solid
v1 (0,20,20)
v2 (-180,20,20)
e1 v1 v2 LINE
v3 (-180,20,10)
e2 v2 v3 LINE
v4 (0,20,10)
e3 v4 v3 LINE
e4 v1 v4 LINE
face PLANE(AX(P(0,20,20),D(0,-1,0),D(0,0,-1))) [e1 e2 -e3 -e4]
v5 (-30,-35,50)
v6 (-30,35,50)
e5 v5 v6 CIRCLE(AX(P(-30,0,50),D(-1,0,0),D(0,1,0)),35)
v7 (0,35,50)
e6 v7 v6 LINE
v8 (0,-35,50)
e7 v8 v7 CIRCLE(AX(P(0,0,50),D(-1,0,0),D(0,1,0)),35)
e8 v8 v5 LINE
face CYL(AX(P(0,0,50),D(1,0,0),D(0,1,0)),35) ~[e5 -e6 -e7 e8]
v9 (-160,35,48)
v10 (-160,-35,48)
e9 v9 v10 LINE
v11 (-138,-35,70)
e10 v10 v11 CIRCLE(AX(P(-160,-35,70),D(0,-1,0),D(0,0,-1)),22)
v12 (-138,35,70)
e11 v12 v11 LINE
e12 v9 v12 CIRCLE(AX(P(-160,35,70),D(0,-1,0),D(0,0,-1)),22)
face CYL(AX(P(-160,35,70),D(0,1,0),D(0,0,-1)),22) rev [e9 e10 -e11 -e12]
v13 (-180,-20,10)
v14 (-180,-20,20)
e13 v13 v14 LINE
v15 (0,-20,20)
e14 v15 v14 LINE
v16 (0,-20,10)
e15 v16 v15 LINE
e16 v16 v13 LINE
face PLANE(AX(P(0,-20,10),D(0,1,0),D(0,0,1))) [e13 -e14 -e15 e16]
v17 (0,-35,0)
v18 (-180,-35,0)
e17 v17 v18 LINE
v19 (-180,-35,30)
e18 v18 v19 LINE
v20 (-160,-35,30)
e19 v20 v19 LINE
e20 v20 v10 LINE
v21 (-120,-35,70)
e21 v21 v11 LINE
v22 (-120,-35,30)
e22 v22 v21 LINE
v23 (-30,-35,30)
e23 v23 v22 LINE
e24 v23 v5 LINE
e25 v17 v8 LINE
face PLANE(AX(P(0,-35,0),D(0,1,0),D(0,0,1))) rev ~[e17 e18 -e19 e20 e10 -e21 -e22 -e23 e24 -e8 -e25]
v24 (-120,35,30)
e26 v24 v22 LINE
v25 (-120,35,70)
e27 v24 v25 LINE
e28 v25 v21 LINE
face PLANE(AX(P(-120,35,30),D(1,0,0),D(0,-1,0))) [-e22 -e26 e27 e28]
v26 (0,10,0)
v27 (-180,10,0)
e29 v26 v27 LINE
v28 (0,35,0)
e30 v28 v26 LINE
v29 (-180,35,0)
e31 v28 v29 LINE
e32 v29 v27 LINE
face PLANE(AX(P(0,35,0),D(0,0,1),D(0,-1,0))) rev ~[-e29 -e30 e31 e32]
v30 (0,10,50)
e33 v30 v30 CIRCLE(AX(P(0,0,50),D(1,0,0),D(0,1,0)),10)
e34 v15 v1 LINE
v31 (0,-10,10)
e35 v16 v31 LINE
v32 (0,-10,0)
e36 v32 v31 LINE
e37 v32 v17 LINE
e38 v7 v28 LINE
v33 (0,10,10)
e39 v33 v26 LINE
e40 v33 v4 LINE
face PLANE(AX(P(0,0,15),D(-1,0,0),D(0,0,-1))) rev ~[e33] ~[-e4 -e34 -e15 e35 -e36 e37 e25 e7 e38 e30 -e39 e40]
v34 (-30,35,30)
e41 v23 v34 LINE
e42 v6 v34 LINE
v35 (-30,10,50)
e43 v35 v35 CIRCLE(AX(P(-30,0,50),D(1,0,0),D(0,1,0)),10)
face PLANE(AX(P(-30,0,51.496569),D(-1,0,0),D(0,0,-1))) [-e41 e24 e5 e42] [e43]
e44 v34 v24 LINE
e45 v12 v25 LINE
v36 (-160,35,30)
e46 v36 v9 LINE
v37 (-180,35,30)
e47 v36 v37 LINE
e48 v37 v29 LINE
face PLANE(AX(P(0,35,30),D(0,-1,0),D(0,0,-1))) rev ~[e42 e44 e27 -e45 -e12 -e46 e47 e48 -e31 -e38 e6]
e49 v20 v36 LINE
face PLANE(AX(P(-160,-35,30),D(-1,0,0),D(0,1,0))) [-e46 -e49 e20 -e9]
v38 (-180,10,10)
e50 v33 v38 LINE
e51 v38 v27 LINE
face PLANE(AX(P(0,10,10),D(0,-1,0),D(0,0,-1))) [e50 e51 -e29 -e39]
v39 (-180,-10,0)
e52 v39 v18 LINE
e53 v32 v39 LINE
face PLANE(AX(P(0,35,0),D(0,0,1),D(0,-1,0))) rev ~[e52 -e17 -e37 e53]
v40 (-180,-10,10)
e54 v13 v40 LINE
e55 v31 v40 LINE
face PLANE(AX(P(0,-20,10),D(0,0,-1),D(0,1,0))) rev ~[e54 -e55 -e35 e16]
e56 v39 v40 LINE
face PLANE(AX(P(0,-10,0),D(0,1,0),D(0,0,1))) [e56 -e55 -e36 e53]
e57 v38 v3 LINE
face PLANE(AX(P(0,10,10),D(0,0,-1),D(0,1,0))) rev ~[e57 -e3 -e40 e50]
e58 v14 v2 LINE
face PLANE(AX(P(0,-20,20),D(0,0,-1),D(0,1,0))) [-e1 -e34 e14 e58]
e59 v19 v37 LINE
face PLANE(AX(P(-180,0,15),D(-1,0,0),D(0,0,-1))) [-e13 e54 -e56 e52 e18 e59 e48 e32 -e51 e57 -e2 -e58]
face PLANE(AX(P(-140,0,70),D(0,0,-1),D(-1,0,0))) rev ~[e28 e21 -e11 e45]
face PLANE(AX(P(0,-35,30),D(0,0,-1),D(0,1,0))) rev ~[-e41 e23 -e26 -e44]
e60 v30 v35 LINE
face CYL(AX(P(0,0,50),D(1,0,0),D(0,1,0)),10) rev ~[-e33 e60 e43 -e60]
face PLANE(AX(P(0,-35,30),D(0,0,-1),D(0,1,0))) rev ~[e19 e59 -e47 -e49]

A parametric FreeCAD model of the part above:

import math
import FreeCAD as App
import Part
import Sketcher
from FreeCAD import Vector

doc = App.newDocument("Part")
body = doc.addObject("PartDesign::Body", "Body")

sketch1 = body.newObject("Sketcher::SketchObject", "Sketch")
sketch1.AttachmentSupport = (doc.getObject("YZ_Plane"), [""])
sketch1.MapMode = "FlatFace"
sketch1.addGeometry([
    Part.LineSegment(Vector(35, 30, 0), Vector(-35, 30, 0)),
    Part.LineSegment(Vector(-35, 30, 0), Vector(-35, 0, 0)),
    Part.LineSegment(Vector(-35, 0, 0), Vector(35, 0, 0)),
    Part.LineSegment(Vector(35, 0, 0), Vector(35, 30, 0)),
], False)
sketch1.addConstraint([
    Sketcher.Constraint("Coincident", 0, 2, 1, 1),
    Sketcher.Constraint("Coincident", 1, 2, 2, 1),
    Sketcher.Constraint("Coincident", 2, 2, 3, 1),
    Sketcher.Constraint("Coincident", 3, 2, 0, 1),
    Sketcher.Constraint("Horizontal", 0),
    Sketcher.Constraint("Vertical", 1),
    Sketcher.Constraint("Horizontal", 2),
    Sketcher.Constraint("Vertical", 3),
    Sketcher.Constraint("Symmetric", 1, 2, 2, 2, -1, 1),
    Sketcher.Constraint("DistanceX", 0, 2, 0, 1, 70.0),
    Sketcher.Constraint("DistanceY", 1, 2, 1, 1, 30.0),
])
pad1 = body.newObject("PartDesign::Pad", "Pad")
pad1.Profile = sketch1
pad1.Length = 180
pad1.Reversed = True

sketch2 = body.newObject("Sketcher::SketchObject", "Sketch001")
sketch2.AttachmentSupport = (doc.getObject("YZ_Plane"), [""])
sketch2.MapMode = "FlatFace"
sketch2.addGeometry([
    Part.LineSegment(Vector(35, 30, 0), Vector(35, 50, 0)),
    Part.ArcOfCircle(Part.Circle(Vector(0, 50, 0), Vector(0, 0, 1), 35), math.radians(0), math.radians(180)),
    Part.LineSegment(Vector(-35, 50, 0), Vector(-35, 30, 0)),
    Part.LineSegment(Vector(-35, 30, 0), Vector(35, 30, 0)),
], False)
sketch2.addConstraint([
    Sketcher.Constraint("Tangent", 0, 2, 1, 1),
    Sketcher.Constraint("Tangent", 1, 2, 2, 1),
    Sketcher.Constraint("Coincident", 2, 2, 3, 1),
    Sketcher.Constraint("Coincident", 3, 2, 0, 1),
    Sketcher.Constraint("Vertical", 0),
    Sketcher.Constraint("Vertical", 2),
    Sketcher.Constraint("Horizontal", 3),
    Sketcher.Constraint("PointOnObject", 1, 3, -2),
    Sketcher.Constraint("Radius", 1, 35.0),
    Sketcher.Constraint("DistanceY", 0, 1, 0, 2, 20.0),
    Sketcher.Constraint("DistanceY", -1, 1, 1, 3, 50.0),
])
pad2 = body.newObject("PartDesign::Pad", "Pad001")
pad2.Profile = sketch2
pad2.Length = 30
pad2.Reversed = True

sketch3 = body.newObject("Sketcher::SketchObject", "Sketch002")
sketch3.AttachmentSupport = (doc.getObject("YZ_Plane"), [""])
sketch3.MapMode = "FlatFace"
sketch3.addGeometry(Part.Circle(Vector(0, 50, 0), Vector(0, 0, 1), 10), False)
sketch3.addConstraint([
    Sketcher.Constraint("PointOnObject", 0, 3, -2),
    Sketcher.Constraint("Diameter", 0, 20.0),
    Sketcher.Constraint("DistanceY", -1, 1, 0, 3, 50.0),
])
pocket1 = body.newObject("PartDesign::Pocket", "Pocket")
pocket1.Profile = sketch3
pocket1.Length = 30

sketch4 = body.newObject("Sketcher::SketchObject", "Sketch003")
sketch4.AttachmentSupport = (doc.getObject("YZ_Plane"), [""])
sketch4.MapMode = "FlatFace"
sketch4.addGeometry([
    Part.LineSegment(Vector(-20, 20, 0), Vector(-20, 10, 0)),
    Part.LineSegment(Vector(-20, 10, 0), Vector(-10, 10, 0)),
    Part.LineSegment(Vector(-10, 10, 0), Vector(-10, 0, 0)),
    Part.LineSegment(Vector(-10, 0, 0), Vector(10, 0, 0)),
    Part.LineSegment(Vector(10, 0, 0), Vector(10, 10, 0)),
    Part.LineSegment(Vector(10, 10, 0), Vector(20, 10, 0)),
    Part.LineSegment(Vector(20, 10, 0), Vector(20, 20, 0)),
    Part.LineSegment(Vector(20, 20, 0), Vector(-20, 20, 0)),
], False)
sketch4.addConstraint([
    Sketcher.Constraint("Coincident", 0, 2, 1, 1),
    Sketcher.Constraint("Coincident", 1, 2, 2, 1),
    Sketcher.Constraint("Coincident", 2, 2, 3, 1),
    Sketcher.Constraint("Coincident", 3, 2, 4, 1),
    Sketcher.Constraint("Coincident", 4, 2, 5, 1),
    Sketcher.Constraint("Coincident", 5, 2, 6, 1),
    Sketcher.Constraint("Coincident", 6, 2, 7, 1),
    Sketcher.Constraint("Coincident", 7, 2, 0, 1),
    Sketcher.Constraint("Vertical", 0),
    Sketcher.Constraint("Horizontal", 1),
    Sketcher.Constraint("Vertical", 2),
    Sketcher.Constraint("Horizontal", 3),
    Sketcher.Constraint("Vertical", 4),
    Sketcher.Constraint("Horizontal", 5),
    Sketcher.Constraint("Vertical", 6),
    Sketcher.Constraint("Horizontal", 7),
    Sketcher.Constraint("Symmetric", 2, 2, 3, 2, -1, 1),
    Sketcher.Constraint("Symmetric", 0, 2, 5, 2, -2),
    Sketcher.Constraint("Equal", 5, 0),
    Sketcher.Constraint("Equal", 0, 2),
    Sketcher.Constraint("DistanceX", 1, 1, 1, 2, 10.0),
    Sketcher.Constraint("DistanceX", 3, 1, 3, 2, 20.0),
])
pocket2 = body.newObject("PartDesign::Pocket", "Pocket001")
pocket2.Profile = sketch4
pocket2.Length = 180

sketch5 = body.newObject("Sketcher::SketchObject", "Sketch004")
sketch5.AttachmentSupport = (doc.getObject("XY_Plane"), [""])
sketch5.MapMode = "FlatFace"
sketch5.AttachmentOffset = App.Placement(Vector(0, 0, 30), App.Rotation())
sketch5.addGeometry([
    Part.LineSegment(Vector(-160, 35, 0), Vector(-160, -35, 0)),
    Part.LineSegment(Vector(-160, -35, 0), Vector(-120, -35, 0)),
    Part.LineSegment(Vector(-120, -35, 0), Vector(-120, 35, 0)),
    Part.LineSegment(Vector(-120, 35, 0), Vector(-160, 35, 0)),
], False)
sketch5.addConstraint([
    Sketcher.Constraint("Coincident", 0, 2, 1, 1),
    Sketcher.Constraint("Coincident", 1, 2, 2, 1),
    Sketcher.Constraint("Coincident", 2, 2, 3, 1),
    Sketcher.Constraint("Coincident", 3, 2, 0, 1),
    Sketcher.Constraint("Vertical", 0),
    Sketcher.Constraint("Horizontal", 1),
    Sketcher.Constraint("Vertical", 2),
    Sketcher.Constraint("Horizontal", 3),
    Sketcher.Constraint("DistanceX", 1, 1, 1, 2, 40.0),
    Sketcher.Constraint("DistanceY", 0, 2, 0, 1, 70.0),
    Sketcher.Constraint("DistanceX", 0, 2, -1, 1, 160.0),
    Sketcher.Constraint("DistanceY", 0, 2, -1, 1, 35.0),
])
pad3 = body.newObject("PartDesign::Pad", "Pad002")
pad3.Profile = sketch5
pad3.Length = 40

sketch6 = body.newObject("Sketcher::SketchObject", "Sketch005")
sketch6.AttachmentSupport = (doc.getObject("XZ_Plane"), [""])
sketch6.MapMode = "FlatFace"
sketch6.AttachmentOffset = App.Placement(Vector(0, 0, -35), App.Rotation())
sketch6.addGeometry([
    Part.LineSegment(Vector(-160, 48, 0), Vector(-160, 70, 0)),
    Part.LineSegment(Vector(-160, 70, 0), Vector(-138, 70, 0)),
    Part.ArcOfCircle(Part.Circle(Vector(-160, 70, 0), Vector(0, 0, 1), 22), math.radians(-90), math.radians(0)),
], False)
sketch6.addConstraint([
    Sketcher.Constraint("Coincident", 0, 2, 1, 1),
    Sketcher.Constraint("Coincident", 1, 2, 2, 2),
    Sketcher.Constraint("Coincident", 2, 1, 0, 1),
    Sketcher.Constraint("Vertical", 0),
    Sketcher.Constraint("Horizontal", 1),
    Sketcher.Constraint("Coincident", 0, 2, 2, 3),
    Sketcher.Constraint("Radius", 2, 22.0),
    Sketcher.Constraint("DistanceX", 2, 3, -1, 1, 160.0),
    Sketcher.Constraint("DistanceY", -1, 1, 2, 3, 70.0),
])
pocket3 = body.newObject("PartDesign::Pocket", "Pocket002")
pocket3.Profile = sketch6
pocket3.Length = 70
pocket3.Reversed = True

doc.recompute()
